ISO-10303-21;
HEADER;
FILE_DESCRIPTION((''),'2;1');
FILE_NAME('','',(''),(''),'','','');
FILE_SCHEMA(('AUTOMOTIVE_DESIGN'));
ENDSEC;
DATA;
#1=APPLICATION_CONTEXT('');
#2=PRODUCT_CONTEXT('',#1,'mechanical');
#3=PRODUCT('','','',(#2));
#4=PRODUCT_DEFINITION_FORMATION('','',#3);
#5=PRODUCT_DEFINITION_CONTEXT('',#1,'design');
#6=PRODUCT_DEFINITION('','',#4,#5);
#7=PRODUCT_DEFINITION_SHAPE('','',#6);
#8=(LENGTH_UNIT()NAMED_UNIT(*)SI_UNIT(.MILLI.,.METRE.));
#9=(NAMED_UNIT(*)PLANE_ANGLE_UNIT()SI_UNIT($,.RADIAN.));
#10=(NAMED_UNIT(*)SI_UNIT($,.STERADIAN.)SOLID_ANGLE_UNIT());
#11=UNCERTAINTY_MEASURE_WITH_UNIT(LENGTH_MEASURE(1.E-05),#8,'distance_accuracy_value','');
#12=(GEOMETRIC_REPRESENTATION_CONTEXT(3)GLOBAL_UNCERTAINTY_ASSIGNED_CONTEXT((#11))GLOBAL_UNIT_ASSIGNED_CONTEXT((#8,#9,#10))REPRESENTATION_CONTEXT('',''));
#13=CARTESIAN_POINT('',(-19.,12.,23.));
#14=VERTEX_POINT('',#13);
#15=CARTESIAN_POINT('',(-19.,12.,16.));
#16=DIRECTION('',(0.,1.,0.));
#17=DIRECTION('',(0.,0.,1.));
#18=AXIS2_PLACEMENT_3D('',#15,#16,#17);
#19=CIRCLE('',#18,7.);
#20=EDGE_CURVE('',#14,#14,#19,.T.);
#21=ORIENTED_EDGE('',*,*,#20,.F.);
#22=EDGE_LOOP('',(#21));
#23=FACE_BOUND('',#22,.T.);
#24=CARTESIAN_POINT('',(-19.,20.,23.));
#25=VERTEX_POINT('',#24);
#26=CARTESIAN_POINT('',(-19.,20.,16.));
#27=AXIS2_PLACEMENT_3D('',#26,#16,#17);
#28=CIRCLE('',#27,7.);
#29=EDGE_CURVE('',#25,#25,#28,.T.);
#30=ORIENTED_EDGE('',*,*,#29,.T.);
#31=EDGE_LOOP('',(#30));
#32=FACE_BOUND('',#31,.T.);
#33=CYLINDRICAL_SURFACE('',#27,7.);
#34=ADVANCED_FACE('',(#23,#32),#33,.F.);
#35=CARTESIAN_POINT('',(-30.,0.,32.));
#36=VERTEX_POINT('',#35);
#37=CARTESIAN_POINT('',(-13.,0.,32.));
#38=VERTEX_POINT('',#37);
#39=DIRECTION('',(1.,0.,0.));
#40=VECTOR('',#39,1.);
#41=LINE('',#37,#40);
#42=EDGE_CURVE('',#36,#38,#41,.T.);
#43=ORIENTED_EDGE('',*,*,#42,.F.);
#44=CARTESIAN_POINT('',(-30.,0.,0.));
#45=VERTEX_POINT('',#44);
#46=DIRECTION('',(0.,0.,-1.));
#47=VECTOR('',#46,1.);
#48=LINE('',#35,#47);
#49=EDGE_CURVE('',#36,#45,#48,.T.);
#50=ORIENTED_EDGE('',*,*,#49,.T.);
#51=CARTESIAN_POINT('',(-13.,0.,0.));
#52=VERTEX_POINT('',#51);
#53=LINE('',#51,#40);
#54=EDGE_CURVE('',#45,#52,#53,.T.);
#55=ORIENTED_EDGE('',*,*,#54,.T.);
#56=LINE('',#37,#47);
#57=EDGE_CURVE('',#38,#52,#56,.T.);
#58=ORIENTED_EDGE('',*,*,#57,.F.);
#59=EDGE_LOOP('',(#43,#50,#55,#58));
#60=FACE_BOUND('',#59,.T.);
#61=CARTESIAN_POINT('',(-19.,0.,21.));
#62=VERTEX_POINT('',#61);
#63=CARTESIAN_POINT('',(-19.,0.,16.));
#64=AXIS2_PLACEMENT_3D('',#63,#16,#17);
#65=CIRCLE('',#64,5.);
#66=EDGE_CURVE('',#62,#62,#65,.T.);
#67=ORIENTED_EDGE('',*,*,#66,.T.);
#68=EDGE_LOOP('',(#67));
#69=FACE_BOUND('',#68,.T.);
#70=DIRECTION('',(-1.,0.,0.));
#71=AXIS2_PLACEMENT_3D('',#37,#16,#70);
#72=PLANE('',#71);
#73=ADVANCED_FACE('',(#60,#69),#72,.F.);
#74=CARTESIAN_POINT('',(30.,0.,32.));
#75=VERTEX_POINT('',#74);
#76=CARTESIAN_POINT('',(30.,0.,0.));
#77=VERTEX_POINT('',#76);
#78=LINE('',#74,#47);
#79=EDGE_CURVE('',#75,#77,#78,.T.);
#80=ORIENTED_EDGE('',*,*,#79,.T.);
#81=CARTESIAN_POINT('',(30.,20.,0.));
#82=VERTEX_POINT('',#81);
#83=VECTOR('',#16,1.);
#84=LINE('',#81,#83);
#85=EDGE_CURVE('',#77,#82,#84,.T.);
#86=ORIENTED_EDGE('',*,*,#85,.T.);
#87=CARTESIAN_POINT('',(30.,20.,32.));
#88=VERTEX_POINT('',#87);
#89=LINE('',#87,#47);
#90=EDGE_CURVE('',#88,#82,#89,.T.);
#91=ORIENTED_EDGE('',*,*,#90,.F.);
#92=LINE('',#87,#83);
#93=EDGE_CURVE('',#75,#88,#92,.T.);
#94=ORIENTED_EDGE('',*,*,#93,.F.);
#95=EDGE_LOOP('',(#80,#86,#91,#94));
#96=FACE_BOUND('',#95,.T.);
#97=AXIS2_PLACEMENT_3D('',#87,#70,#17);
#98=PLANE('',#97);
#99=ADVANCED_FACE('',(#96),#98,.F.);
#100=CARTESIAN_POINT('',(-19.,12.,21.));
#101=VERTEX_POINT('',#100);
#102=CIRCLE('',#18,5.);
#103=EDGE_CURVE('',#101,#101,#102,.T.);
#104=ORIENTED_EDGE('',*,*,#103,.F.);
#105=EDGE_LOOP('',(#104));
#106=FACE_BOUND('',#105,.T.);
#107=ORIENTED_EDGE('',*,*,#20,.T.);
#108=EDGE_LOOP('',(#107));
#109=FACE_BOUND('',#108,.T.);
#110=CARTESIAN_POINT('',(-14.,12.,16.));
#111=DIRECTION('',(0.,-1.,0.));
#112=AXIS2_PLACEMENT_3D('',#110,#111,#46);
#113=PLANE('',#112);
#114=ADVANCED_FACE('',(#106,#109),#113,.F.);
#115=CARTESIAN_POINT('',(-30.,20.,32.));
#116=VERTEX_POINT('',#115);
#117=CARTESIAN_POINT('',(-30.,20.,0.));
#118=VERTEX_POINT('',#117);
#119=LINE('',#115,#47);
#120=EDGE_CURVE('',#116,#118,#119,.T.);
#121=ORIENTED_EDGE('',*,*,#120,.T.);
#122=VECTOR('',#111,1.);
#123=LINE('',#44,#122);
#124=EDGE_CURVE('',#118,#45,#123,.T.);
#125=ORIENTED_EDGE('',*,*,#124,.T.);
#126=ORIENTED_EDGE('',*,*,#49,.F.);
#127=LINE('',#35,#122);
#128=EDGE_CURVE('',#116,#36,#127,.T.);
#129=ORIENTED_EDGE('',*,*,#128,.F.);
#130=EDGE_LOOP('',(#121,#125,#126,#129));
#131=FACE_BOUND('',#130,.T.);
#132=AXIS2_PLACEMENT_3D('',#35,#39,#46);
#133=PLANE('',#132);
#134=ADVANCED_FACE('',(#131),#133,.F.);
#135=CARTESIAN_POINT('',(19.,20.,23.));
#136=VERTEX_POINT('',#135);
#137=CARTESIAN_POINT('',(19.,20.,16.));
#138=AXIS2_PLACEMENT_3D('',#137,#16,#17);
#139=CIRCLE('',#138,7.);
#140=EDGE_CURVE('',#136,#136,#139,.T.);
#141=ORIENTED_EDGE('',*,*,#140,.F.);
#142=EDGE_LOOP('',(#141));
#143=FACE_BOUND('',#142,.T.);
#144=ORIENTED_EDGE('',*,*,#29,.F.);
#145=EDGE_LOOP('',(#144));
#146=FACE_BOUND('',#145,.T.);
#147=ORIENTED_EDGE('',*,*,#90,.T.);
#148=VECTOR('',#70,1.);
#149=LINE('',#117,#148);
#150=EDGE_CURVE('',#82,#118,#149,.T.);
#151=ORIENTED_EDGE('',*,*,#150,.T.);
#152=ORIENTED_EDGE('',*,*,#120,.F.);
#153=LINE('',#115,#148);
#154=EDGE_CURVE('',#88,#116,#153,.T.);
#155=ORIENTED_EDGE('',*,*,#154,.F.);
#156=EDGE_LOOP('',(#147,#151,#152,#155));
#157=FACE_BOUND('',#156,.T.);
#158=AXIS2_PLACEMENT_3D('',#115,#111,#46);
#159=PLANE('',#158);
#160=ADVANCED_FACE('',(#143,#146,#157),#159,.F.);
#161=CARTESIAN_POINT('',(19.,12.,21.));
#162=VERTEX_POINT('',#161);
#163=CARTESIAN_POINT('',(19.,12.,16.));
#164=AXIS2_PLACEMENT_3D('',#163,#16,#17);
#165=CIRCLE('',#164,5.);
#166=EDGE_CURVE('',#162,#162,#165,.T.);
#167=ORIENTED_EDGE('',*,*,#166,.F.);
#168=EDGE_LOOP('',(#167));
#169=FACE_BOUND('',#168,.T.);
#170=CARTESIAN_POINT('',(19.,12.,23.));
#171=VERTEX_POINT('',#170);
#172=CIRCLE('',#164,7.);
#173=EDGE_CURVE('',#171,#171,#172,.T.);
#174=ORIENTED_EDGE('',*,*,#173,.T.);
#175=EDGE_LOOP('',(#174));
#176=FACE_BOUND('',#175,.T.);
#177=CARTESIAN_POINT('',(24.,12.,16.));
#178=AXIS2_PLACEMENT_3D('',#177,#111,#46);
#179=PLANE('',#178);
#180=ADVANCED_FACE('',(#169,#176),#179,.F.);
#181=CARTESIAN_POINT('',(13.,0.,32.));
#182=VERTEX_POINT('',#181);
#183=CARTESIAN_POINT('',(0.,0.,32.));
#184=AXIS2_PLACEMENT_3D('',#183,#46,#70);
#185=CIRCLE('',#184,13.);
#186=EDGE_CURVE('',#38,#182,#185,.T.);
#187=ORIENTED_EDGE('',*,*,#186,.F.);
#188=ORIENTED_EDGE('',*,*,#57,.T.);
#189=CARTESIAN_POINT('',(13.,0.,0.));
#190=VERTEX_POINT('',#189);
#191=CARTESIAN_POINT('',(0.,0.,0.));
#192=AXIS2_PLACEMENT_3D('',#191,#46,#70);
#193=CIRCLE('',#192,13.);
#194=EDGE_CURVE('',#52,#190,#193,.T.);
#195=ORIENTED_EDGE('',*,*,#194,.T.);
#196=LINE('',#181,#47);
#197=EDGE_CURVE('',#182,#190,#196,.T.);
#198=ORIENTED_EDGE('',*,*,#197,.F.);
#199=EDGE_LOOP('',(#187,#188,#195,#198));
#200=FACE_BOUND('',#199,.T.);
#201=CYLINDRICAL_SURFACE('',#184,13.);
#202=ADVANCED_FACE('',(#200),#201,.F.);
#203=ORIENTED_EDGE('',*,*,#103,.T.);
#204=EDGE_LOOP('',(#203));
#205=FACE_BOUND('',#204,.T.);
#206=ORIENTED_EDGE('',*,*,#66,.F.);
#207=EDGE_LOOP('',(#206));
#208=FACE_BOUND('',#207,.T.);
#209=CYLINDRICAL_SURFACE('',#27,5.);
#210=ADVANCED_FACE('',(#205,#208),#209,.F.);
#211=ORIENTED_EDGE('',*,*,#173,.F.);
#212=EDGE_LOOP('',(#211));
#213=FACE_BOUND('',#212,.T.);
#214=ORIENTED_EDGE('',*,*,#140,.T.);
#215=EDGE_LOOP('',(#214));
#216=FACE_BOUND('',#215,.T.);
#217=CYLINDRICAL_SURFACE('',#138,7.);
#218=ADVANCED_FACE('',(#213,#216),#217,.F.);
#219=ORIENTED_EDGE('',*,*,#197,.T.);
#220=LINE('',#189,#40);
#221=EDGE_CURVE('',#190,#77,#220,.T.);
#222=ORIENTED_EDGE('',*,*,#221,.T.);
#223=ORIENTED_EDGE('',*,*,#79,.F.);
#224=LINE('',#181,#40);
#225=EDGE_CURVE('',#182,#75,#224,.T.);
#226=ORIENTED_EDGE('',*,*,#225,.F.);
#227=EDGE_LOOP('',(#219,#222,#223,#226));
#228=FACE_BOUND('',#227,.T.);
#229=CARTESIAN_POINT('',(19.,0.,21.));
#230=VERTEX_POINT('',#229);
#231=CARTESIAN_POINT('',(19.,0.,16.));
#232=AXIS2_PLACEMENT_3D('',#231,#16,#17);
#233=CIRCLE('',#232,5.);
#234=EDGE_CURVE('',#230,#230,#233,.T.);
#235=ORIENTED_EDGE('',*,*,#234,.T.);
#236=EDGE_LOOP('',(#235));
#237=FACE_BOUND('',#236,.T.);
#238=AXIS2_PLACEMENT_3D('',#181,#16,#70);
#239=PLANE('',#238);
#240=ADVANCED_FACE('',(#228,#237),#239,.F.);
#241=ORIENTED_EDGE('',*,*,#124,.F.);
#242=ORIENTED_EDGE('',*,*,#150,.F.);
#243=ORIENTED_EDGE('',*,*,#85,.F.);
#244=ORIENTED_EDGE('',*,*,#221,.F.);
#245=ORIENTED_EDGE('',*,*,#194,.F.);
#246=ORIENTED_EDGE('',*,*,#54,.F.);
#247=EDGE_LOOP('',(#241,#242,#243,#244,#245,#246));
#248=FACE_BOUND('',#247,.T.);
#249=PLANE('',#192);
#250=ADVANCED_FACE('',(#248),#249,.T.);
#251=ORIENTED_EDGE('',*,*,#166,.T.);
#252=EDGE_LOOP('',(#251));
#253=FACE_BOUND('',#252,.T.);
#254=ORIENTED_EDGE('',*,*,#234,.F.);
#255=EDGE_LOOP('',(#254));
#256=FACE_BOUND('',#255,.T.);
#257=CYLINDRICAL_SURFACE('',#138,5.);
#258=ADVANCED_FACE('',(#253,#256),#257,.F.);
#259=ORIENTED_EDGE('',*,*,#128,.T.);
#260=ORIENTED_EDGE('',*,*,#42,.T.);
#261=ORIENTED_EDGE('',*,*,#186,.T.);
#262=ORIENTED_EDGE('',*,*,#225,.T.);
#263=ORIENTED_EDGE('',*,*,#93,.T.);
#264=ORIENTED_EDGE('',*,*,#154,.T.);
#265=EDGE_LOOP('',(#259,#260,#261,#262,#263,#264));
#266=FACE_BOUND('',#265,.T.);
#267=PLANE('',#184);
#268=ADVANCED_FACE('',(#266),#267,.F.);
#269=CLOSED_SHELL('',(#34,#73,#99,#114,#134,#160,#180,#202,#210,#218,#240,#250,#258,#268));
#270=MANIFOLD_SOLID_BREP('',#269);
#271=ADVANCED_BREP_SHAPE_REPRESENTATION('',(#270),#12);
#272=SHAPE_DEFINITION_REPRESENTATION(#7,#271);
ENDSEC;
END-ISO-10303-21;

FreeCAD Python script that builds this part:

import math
import FreeCAD as App
import Part
import Sketcher

doc = App.newDocument("Part")
params = doc.addObject("Spreadsheet::Sheet", "Params")
for row, (alias, value) in enumerate([
    ("sketch1_radius", "13 mm"),
    ("sketch1_width", "17 mm"),
    ("sketch1_height", "20 mm"),
    ("pad1_length", "32 mm"),
    ("sketch2_diameter", "10 mm"),
    ("hole_diameter", "10 mm"),
    ("hole_cbore_diameter", "14 mm"),
    ("hole_cbore_depth", "8 mm"),
], start=1):
    params.set(f"A{row}", alias)
    params.set(f"B{row}", "=" + value)
    params.setAlias(f"B{row}", alias)

body = doc.addObject("PartDesign::Body", "Body")

# Sketch on XY plane
sketch1 = body.newObject("Sketcher::SketchObject", "Sketch")
sketch1.AttachmentSupport = (doc.getObject("XY_Plane"), [""])
sketch1.MapMode = "FlatFace"
sketch1.addGeometry([
    Part.LineSegment(App.Vector(-30, 0, 0), App.Vector(-13, 0, 0)),  # 0
    Part.ArcOfCircle(Part.Circle(App.Vector(0, 0, 0), App.Vector(0, 0, 1), 13), math.radians(0), math.radians(180)),  # 1
    Part.LineSegment(App.Vector(13, 0, 0), App.Vector(30, 0, 0)),  # 2
    Part.LineSegment(App.Vector(30, 0, 0), App.Vector(30, 20, 0)),  # 3
    Part.LineSegment(App.Vector(30, 20, 0), App.Vector(-30, 20, 0)),  # 4
    Part.LineSegment(App.Vector(-30, 20, 0), App.Vector(-30, 0, 0)),  # 5
], False)
sketch1.addConstraint([
    Sketcher.Constraint("Coincident", 0, 2, 1, 2),
    Sketcher.Constraint("Coincident", 1, 1, 2, 1),
    Sketcher.Constraint("Coincident", 2, 2, 3, 1),
    Sketcher.Constraint("Coincident", 3, 2, 4, 1),
    Sketcher.Constraint("Coincident", 4, 2, 5, 1),
    Sketcher.Constraint("Coincident", 5, 2, 0, 1),
    Sketcher.Constraint("Horizontal", 0),
    Sketcher.Constraint("Horizontal", 2),
    Sketcher.Constraint("Vertical", 3),
    Sketcher.Constraint("Horizontal", 4),
    Sketcher.Constraint("Vertical", 5),
    Sketcher.Constraint("Coincident", 1, 3, -1, 1),
    Sketcher.Constraint("Symmetric", 2, 2, 5, 2, -1, 1),
    Sketcher.Constraint("PointOnObject", 0, 2, -1),
    Sketcher.Constraint("Radius", 1, 13.0),
    Sketcher.Constraint("DistanceX", 0, 1, 0, 2, 17.0),
    Sketcher.Constraint("DistanceY", 3, 1, 3, 2, 20.0),
])
sketch1.setExpression("Constraints[14]", "Params.sketch1_radius")
sketch1.setExpression("Constraints[15]", "Params.sketch1_width")
sketch1.setExpression("Constraints[16]", "Params.sketch1_height")
pad1 = body.newObject("PartDesign::Pad", "Pad")
pad1.Profile = sketch1
pad1.setExpression("Length", "Params.pad1_length")

# Sketch on XZ plane
sketch2 = body.newObject("Sketcher::SketchObject", "Sketch001")
sketch2.AttachmentSupport = (doc.getObject("XZ_Plane"), [""])
sketch2.MapMode = "FlatFace"
sketch2.AttachmentOffset = App.Placement(App.Vector(0, 0, -20), App.Rotation())
sketch2.addGeometry([
    Part.Circle(App.Vector(-19, 16, 0), App.Vector(0, 0, 1), 5),
    Part.Circle(App.Vector(19, 16, 0), App.Vector(0, 0, 1), 5),
], False)
sketch2.addConstraint([
    Sketcher.Constraint("Equal", 0, 1),
    Sketcher.Constraint("Symmetric", 0, 3, 1, 3, -2),
    Sketcher.Constraint("Diameter", 0, 10.0),
    Sketcher.Constraint("DistanceX", 0, 3, -1, 1, 19.0),
    Sketcher.Constraint("DistanceY", -1, 1, 0, 3, 16.0),
])
sketch2.setExpression("Constraints[2]", "Params.sketch2_diameter")
doc.recompute()
hole = body.newObject("PartDesign::Hole", "Hole")
hole.Profile = sketch2
hole.ThreadType = "None"
hole.setExpression("Diameter", "Params.hole_diameter")
hole.DepthType = "ThroughAll"
hole.HoleCutType = "Counterbore"
hole.setExpression("HoleCutDiameter", "Params.hole_cbore_diameter")
hole.setExpression("HoleCutDepth", "Params.hole_cbore_depth")
hole.Reversed = True

doc.recompute()
